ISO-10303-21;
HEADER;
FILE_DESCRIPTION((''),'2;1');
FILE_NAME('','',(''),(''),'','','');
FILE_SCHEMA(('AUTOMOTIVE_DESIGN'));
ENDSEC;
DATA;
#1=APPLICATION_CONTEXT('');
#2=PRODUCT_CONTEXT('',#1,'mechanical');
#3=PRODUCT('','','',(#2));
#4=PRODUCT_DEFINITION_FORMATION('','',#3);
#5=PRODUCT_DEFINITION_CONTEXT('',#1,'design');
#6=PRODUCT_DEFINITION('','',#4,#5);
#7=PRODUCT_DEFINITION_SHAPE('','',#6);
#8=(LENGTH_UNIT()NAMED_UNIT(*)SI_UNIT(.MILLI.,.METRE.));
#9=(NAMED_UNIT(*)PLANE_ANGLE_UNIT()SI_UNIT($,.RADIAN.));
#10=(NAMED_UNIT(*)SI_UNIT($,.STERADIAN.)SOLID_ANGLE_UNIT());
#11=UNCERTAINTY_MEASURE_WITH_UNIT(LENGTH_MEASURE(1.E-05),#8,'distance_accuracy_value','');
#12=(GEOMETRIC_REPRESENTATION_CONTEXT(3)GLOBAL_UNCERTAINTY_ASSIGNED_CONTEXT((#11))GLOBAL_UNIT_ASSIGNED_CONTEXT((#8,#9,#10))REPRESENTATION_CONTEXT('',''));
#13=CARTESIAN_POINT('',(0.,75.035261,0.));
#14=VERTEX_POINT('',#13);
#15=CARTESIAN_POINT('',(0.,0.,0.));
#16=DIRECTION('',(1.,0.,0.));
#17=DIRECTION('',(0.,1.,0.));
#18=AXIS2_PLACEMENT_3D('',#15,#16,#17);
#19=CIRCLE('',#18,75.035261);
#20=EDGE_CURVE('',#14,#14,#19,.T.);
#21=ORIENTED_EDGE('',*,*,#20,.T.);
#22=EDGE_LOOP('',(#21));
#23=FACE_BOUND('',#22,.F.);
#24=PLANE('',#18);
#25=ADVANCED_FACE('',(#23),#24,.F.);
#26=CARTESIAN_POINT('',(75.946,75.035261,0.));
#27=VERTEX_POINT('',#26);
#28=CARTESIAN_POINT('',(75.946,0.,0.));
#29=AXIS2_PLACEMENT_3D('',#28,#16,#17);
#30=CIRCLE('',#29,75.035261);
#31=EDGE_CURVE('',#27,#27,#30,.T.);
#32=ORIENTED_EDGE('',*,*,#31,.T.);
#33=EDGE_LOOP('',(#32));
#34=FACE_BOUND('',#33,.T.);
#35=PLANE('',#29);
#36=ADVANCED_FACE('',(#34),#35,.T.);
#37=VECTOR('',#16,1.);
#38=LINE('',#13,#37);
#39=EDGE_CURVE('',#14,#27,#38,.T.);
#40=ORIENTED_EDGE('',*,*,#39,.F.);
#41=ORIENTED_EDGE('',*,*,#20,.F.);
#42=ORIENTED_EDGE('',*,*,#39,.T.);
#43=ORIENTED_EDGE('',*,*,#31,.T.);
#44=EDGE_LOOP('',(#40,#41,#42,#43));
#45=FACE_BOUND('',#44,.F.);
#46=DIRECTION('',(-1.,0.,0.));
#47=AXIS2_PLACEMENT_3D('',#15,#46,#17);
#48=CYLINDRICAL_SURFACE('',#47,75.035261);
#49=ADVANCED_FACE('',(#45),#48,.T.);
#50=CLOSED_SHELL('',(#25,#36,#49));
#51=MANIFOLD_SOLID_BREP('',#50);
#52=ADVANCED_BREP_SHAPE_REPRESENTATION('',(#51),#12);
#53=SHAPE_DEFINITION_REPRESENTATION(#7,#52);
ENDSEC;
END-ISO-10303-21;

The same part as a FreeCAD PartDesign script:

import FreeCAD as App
import Part
import Sketcher

V = App.Vector
Q = App.Units.Quantity

doc = App.newDocument("Part")
body = doc.addObject("PartDesign::Body", "Body")

# Sketch on YZ plane
sketch1 = doc.addObject("Sketcher::SketchObject", "Sketch")
body.addObject(sketch1)
sketch1.AttachmentSupport = (doc.YZ_Plane, [""])
sketch1.MapMode = "FlatFace"
sketch1.addGeometry(Part.Circle(V(0, 0, 0), V(0, 0, 1), 75), False)
sketch1.addConstraint([
    Sketcher.Constraint("Coincident", 0, 3, -1, 1),
    Sketcher.Constraint("Diameter", 0, 150.070522),
])
pad1 = doc.addObject("PartDesign::Pad", "Pad")
body.addObject(pad1)
pad1.Profile = sketch1
pad1.Length = Q("2.99 in")

doc.recompute()
